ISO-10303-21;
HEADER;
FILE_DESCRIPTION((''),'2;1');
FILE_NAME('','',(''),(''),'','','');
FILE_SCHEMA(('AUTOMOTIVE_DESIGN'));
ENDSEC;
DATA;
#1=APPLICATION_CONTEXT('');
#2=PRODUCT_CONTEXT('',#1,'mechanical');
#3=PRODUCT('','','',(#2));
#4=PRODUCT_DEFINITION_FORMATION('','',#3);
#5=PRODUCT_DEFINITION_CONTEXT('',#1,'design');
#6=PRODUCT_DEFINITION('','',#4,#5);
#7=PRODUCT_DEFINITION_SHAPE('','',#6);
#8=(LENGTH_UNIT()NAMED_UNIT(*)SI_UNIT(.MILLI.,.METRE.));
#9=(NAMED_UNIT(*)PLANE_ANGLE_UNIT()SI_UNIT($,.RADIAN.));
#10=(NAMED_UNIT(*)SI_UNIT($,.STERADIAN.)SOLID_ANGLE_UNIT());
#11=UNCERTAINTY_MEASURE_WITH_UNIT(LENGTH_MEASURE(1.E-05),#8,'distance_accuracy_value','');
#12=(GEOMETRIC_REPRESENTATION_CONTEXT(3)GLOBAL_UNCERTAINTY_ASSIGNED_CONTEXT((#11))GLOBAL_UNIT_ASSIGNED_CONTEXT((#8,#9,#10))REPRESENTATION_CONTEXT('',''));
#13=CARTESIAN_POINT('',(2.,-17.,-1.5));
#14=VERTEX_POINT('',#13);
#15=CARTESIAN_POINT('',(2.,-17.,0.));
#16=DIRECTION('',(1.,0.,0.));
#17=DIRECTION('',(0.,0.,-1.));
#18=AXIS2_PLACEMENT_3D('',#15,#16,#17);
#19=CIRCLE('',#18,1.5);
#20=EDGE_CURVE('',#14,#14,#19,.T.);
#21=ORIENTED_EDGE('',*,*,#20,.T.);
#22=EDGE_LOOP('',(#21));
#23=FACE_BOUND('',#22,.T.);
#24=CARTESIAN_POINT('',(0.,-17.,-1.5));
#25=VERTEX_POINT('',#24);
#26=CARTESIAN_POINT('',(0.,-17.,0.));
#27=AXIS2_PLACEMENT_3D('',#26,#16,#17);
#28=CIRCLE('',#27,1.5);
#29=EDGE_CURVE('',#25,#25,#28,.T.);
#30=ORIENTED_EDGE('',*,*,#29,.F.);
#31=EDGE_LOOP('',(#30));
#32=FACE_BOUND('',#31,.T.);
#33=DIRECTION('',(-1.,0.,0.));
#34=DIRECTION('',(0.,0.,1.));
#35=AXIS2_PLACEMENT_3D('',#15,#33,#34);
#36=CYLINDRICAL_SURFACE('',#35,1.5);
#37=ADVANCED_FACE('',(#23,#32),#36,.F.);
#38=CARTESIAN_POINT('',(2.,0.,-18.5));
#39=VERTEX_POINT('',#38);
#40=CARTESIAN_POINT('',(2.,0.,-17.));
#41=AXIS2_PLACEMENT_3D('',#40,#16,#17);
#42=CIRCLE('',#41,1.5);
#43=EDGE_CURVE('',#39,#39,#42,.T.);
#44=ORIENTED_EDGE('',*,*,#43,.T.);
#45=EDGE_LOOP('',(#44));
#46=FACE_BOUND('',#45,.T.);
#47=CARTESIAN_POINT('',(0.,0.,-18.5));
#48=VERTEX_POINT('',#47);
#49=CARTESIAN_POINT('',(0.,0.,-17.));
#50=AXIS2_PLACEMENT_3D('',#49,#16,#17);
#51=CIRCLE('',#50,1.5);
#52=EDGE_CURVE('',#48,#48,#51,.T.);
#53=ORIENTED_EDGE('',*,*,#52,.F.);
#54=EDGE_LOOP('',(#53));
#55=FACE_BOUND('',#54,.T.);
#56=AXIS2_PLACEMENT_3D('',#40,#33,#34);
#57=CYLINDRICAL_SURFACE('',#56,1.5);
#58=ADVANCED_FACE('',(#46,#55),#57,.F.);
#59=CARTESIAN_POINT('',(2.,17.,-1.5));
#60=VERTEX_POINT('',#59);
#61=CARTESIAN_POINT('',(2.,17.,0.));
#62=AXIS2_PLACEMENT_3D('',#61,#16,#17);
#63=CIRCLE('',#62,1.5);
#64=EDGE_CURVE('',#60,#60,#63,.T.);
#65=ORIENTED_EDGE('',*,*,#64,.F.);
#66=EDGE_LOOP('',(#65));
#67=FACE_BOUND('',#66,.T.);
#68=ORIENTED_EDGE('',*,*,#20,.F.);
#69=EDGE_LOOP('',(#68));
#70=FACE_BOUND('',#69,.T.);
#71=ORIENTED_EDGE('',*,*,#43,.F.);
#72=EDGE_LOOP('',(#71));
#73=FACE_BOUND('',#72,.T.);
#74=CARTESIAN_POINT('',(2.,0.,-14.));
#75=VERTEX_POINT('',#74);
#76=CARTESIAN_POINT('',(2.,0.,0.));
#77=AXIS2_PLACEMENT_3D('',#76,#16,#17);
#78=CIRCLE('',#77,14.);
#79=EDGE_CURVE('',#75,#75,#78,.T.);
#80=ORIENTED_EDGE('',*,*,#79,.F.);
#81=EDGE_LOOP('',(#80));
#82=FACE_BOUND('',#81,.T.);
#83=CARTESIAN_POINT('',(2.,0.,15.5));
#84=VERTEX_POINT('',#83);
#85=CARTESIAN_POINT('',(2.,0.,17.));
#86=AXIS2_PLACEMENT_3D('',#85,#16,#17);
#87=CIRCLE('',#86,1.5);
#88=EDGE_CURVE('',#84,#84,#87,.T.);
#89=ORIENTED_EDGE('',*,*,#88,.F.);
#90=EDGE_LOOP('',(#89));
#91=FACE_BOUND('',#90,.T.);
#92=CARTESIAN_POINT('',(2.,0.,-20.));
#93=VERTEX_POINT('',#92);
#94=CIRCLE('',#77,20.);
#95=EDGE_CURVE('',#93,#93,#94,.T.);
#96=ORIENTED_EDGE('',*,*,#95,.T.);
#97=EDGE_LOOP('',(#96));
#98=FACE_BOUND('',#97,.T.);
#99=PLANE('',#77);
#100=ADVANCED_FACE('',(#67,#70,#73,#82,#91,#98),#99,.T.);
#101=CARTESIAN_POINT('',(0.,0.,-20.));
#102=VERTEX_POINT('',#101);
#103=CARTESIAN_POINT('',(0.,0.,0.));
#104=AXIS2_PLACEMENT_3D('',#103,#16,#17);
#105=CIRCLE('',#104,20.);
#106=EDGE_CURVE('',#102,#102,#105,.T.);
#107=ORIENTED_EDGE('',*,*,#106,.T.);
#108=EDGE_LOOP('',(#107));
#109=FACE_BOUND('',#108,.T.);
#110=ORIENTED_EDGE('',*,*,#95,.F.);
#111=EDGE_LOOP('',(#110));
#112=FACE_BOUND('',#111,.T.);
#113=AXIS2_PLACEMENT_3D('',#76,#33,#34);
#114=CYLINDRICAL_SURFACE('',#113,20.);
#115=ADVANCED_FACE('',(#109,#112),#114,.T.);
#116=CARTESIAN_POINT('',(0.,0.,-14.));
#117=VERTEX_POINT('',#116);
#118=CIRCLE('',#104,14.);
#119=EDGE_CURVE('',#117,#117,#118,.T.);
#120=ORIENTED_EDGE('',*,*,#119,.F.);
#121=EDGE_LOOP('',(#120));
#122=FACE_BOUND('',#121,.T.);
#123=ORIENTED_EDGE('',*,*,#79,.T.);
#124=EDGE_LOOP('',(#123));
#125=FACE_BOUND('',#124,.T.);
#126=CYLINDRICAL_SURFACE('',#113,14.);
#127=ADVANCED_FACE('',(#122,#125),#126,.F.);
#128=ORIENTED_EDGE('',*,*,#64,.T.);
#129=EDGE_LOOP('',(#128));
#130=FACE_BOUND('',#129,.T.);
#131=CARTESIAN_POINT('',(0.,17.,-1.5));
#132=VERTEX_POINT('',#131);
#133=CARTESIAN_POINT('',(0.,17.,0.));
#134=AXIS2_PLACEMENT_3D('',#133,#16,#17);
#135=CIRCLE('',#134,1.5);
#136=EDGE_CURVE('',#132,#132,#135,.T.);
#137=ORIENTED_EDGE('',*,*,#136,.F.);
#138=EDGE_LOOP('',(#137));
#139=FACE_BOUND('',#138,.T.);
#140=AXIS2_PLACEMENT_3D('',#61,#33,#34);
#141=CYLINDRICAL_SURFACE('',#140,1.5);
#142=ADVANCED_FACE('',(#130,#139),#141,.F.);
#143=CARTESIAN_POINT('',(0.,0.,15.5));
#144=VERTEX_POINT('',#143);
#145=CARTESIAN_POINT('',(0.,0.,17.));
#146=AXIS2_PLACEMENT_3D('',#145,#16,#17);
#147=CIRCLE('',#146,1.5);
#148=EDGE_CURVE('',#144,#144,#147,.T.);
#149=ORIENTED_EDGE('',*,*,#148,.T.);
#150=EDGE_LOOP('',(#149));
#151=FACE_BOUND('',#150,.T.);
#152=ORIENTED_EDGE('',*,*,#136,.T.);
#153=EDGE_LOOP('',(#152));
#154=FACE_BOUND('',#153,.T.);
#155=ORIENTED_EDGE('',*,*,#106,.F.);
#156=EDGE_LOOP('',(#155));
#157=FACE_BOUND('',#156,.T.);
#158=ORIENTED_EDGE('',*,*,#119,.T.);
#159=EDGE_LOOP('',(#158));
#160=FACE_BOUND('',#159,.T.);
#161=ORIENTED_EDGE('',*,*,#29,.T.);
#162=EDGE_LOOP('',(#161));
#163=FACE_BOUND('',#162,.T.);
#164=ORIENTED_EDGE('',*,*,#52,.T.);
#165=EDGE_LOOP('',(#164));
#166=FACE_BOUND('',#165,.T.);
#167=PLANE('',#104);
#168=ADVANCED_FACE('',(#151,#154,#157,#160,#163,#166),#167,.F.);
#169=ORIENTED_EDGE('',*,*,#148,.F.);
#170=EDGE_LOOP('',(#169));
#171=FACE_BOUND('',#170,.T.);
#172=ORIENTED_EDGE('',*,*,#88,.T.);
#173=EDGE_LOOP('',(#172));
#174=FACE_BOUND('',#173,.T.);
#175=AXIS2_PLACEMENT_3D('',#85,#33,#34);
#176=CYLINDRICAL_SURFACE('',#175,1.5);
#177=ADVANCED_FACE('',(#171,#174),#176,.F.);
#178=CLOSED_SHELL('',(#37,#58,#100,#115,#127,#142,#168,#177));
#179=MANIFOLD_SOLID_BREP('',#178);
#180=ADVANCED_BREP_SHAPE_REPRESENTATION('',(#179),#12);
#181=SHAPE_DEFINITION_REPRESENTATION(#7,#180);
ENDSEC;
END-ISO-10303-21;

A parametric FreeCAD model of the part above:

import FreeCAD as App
import Part
import Sketcher
from FreeCAD import Vector
Q = App.Units.Quantity

doc = App.newDocument("Part")
body = doc.addObject("PartDesign::Body", "Body")

sketch1 = body.newObject("Sketcher::SketchObject", "Sketch")
sketch1.AttachmentSupport = (doc.getObject("YZ_Plane"), [""])
sketch1.MapMode = "FlatFace"
sketch1.addGeometry([
    Part.Circle(Vector(0, 0, 0), Vector(0, 0, 1), 20),
    Part.Circle(Vector(-17, 0, 0), Vector(0, 0, 1), 1.5),
    Part.Circle(Vector(0, 17, 0), Vector(0, 0, 1), 1.5),
    Part.Circle(Vector(0, 0, 0), Vector(0, 0, 1), 14),
    Part.Circle(Vector(0, -17, 0), Vector(0, 0, 1), 1.5),
    Part.Circle(Vector(17, 0, 0), Vector(0, 0, 1), 1.5),
], False)
sketch1.addConstraint([
    Sketcher.Constraint("Coincident", 0, 3, -1, 1),
    Sketcher.Constraint("Coincident", 3, 3, -1, 1),
    Sketcher.Constraint("Equal", 1, 2),
    Sketcher.Constraint("Equal", 2, 4),
    Sketcher.Constraint("Equal", 4, 5),
    Sketcher.Constraint("Symmetric", 2, 3, 4, 3, -1, 1),
    Sketcher.Constraint("Symmetric", 1, 3, 5, 3, -1, 1),
    Sketcher.Constraint("PointOnObject", 1, 3, -1),
    Sketcher.Constraint("PointOnObject", 2, 3, -2),
    Sketcher.Constraint("Diameter", 0, Q("40 mm")),
    Sketcher.Constraint("Diameter", 1, Q("3 mm")),
    Sketcher.Constraint("Diameter", 3, Q("28 mm")),
    Sketcher.Constraint("DistanceX", 1, 3, -1, 1, Q("17 mm")),
    Sketcher.Constraint("DistanceY", -1, 1, 2, 3, Q("17 mm")),
])
pad1 = body.newObject("PartDesign::Pad", "Pad")
pad1.Profile = sketch1
pad1.Length = 2

doc.recompute()
